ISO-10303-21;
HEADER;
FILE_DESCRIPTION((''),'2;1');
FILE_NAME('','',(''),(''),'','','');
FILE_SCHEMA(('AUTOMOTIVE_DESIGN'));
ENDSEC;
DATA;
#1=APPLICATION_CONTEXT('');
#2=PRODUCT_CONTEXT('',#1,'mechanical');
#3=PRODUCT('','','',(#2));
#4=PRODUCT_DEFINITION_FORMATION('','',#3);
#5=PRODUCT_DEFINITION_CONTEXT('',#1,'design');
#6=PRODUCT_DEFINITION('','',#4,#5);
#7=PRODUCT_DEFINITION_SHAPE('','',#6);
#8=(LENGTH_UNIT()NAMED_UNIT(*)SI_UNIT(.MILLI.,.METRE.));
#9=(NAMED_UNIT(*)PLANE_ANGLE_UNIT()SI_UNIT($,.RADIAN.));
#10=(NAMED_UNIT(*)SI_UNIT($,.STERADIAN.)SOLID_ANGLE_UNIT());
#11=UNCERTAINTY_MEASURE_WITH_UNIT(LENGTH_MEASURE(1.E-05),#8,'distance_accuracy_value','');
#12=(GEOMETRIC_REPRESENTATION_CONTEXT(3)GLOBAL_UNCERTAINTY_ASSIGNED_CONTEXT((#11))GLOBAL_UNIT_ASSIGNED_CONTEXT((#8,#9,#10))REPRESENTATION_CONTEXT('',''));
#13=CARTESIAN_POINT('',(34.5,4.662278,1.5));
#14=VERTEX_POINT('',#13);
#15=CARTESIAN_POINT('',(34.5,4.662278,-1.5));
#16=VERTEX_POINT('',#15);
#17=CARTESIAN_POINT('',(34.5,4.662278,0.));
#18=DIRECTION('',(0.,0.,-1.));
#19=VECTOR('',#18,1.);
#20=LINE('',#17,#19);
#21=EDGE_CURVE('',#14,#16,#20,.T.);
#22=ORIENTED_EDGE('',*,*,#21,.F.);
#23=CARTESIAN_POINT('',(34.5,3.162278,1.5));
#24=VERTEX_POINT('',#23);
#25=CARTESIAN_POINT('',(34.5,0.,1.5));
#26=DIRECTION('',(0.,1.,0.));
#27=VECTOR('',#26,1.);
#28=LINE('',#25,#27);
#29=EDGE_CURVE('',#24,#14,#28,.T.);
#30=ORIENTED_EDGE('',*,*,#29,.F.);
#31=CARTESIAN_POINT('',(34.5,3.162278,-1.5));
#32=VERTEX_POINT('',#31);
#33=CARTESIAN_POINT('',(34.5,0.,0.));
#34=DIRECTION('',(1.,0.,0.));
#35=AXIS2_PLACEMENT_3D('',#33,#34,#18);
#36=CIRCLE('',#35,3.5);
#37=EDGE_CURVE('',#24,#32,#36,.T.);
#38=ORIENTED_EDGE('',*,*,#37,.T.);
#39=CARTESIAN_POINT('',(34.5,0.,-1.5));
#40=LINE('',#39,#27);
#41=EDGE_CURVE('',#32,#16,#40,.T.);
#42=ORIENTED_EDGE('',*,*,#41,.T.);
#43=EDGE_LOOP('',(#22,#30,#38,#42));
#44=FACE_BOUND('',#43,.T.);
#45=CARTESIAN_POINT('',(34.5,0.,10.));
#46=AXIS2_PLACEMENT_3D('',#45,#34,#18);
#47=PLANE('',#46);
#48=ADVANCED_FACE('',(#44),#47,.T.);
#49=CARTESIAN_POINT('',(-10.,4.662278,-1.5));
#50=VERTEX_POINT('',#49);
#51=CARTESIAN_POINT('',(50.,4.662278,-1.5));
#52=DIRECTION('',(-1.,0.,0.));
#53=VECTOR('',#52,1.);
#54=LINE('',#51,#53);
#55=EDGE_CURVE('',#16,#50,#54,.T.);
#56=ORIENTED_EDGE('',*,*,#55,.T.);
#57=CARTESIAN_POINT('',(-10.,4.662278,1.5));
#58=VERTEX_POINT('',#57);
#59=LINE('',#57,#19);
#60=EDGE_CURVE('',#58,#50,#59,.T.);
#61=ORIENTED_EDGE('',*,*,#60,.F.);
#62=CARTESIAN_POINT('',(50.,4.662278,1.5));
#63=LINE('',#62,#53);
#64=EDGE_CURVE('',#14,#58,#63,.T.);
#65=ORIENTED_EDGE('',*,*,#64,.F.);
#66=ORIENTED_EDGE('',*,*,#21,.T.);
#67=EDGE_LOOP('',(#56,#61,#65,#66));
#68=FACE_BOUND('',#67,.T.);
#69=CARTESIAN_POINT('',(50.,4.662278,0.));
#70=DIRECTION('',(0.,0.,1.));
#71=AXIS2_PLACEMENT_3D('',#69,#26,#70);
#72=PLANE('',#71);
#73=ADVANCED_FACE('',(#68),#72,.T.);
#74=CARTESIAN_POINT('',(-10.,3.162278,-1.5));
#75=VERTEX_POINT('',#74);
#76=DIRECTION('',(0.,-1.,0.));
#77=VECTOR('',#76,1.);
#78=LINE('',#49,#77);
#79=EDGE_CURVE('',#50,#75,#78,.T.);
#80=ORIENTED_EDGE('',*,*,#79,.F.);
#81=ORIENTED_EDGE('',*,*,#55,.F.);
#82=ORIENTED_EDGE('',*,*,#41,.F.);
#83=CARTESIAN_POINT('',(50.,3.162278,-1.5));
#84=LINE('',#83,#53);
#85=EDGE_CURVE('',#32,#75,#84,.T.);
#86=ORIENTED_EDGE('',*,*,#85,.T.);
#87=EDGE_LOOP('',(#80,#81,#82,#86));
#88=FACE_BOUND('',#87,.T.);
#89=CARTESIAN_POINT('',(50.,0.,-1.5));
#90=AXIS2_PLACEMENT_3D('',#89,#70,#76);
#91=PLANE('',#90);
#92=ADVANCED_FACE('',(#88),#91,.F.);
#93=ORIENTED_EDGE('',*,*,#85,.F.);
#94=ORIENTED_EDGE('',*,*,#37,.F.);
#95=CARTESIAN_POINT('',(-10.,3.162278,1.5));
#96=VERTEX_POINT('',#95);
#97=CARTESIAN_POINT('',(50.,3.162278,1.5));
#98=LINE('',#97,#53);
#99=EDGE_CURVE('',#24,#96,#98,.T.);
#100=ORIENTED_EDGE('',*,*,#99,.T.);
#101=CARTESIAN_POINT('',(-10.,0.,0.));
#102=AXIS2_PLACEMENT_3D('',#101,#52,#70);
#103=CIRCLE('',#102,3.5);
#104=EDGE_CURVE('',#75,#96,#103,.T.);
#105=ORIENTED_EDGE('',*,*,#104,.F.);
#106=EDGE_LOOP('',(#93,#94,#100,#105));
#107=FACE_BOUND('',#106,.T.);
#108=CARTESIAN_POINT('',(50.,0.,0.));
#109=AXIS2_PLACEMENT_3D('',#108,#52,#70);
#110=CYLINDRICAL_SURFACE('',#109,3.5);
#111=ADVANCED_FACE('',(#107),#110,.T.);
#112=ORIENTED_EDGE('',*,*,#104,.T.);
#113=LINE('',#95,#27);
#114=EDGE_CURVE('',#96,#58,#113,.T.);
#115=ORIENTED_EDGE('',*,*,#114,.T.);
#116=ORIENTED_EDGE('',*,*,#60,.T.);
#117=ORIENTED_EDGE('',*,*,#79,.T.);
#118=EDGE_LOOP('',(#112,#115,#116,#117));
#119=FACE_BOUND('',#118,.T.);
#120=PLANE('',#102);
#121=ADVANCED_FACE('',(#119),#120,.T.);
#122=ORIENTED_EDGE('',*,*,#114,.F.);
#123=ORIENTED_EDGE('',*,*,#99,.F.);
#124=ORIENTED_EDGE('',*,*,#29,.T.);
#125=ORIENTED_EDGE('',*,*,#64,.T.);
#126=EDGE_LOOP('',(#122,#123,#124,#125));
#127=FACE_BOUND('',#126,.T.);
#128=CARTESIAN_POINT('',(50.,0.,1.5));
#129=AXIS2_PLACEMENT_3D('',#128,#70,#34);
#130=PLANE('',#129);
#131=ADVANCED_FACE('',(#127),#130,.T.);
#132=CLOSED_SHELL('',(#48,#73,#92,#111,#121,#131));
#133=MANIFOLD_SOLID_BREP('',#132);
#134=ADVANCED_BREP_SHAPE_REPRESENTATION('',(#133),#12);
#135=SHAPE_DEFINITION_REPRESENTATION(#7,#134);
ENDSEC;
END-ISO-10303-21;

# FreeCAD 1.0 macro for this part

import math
import FreeCAD as App
import Part
import Sketcher
Q = App.Units.Quantity


def add_polygon(sketch, points):
    """Adds a closed chain of lines whose ends are joined by coincident constraints."""
    first, n = sketch.GeometryCount, len(points)
    for a, b in zip(points, points[1:] + points[:1]):
        sketch.addGeometry(Part.LineSegment(App.Vector(*a, 0), App.Vector(*b, 0)), False)
    for i in range(n):
        sketch.addConstraint(Sketcher.Constraint("Coincident", first + i, 2, first + (i + 1) % n, 1))

doc = App.newDocument("Part")
body = doc.addObject("PartDesign::Body", "Body")

# Sketch on YZ plane
sketch1 = doc.addObject("Sketcher::SketchObject", "Sketch")
body.addObject(sketch1)
sketch1.AttachmentSupport = (doc.YZ_Plane, [""])
sketch1.MapMode = "FlatFace"
sketch1.addGeometry([
    Part.ArcOfCircle(Part.Circle(App.Vector(0, 0, 0), App.Vector(0, 0, 1), 3.5), math.radians(25.376934), math.radians(270)),  # 0
    Part.ArcOfCircle(Part.Circle(App.Vector(0, 0, 0), App.Vector(0, 0, 1), 3.5), math.radians(-90), math.radians(-25.376934)),  # 1
    Part.LineSegment(App.Vector(3.162278, -1.5, 0), App.Vector(4.662278, -1.5, 0)),  # 2
    Part.LineSegment(App.Vector(4.662278, -1.5, 0), App.Vector(4.662278, 1.5, 0)),  # 3
    Part.LineSegment(App.Vector(4.662278, 1.5, 0), App.Vector(3.162278, 1.5, 0)),  # 4
], False)
sketch1.addConstraint([
    Sketcher.Constraint("Tangent", 0, 2, 1, 1),
    Sketcher.Constraint("Coincident", 1, 2, 2, 1),
    Sketcher.Constraint("Coincident", 2, 2, 3, 1),
    Sketcher.Constraint("Coincident", 3, 2, 4, 1),
    Sketcher.Constraint("Coincident", 4, 2, 0, 1),
    Sketcher.Constraint("Horizontal", 2),
    Sketcher.Constraint("Vertical", 3),
    Sketcher.Constraint("Horizontal", 4),
    Sketcher.Constraint("Coincident", 0, 3, -1, 1),
    Sketcher.Constraint("Equal", 0, 1),
    Sketcher.Constraint("PointOnObject", 0, 2, -2),
    Sketcher.Constraint("Vertical", 1, 2, 4, 2),
    Sketcher.Constraint("Radius", 0, Q("3.5 mm")),
    Sketcher.Constraint("DistanceY", 3, 1, 3, 2, Q("3 mm")),
    Sketcher.Constraint("DistanceX", 2, 1, 2, 2, Q("1.5 mm")),
])
pad1 = doc.addObject("PartDesign::Pad", "Pad")
body.addObject(pad1)
pad1.Profile = sketch1
pad1.Length = 50

# Sketch on YZ plane
sketch2 = doc.addObject("Sketcher::SketchObject", "Sketch001")
body.addObject(sketch2)
sketch2.AttachmentSupport = (doc.YZ_Plane, [""])
sketch2.MapMode = "FlatFace"
sketch2.AttachmentOffset = App.Placement(App.Vector(0, 0, 44), App.Rotation())
sketch2.addGeometry([
    Part.LineSegment(App.Vector(4.662278, 1.5, 0), App.Vector(3.162278, 1.5, 0)),
    Part.ArcOfCircle(Part.Circle(App.Vector(0, 0, 0), App.Vector(0, 0, 1), 3.5), math.radians(-25.376934), math.radians(25.376934)),
    Part.LineSegment(App.Vector(3.162278, -1.5, 0), App.Vector(4.662278, -1.5, 0)),
    Part.LineSegment(App.Vector(4.662278, -1.5, 0), App.Vector(4.662278, 1.5, 0)),
], False)
sketch2.addConstraint([
    Sketcher.Constraint("Coincident", 0, 2, 1, 2),
    Sketcher.Constraint("Coincident", 1, 1, 2, 1),
    Sketcher.Constraint("Coincident", 2, 2, 3, 1),
    Sketcher.Constraint("Coincident", 3, 2, 0, 1),
    Sketcher.Constraint("Horizontal", 0),
    Sketcher.Constraint("Horizontal", 2),
    Sketcher.Constraint("Vertical", 3),
    Sketcher.Constraint("Coincident", 1, 3, -1, 1),
    Sketcher.Constraint("Vertical", 0, 2, 1, 1),
    Sketcher.Constraint("Radius", 1, Q("3.5 mm")),
    Sketcher.Constraint("DistanceY", 3, 1, 3, 2, Q("3 mm")),
    Sketcher.Constraint("DistanceX", 0, 2, 0, 1, Q("1.5 mm")),
])
pocket1 = doc.addObject("PartDesign::Pocket", "Pocket")
body.addObject(pocket1)
pocket1.Profile = sketch2
pocket1.Length = 6
pocket1.Reversed = True
doc.recompute()

datumplane = doc.addObject("PartDesign::Plane", "DatumPlane")
body.addObject(datumplane)
datumplane.AttachmentSupport = (doc.YZ_Plane, [""])
datumplane.MapMode = "FlatFace"
datumplane.AttachmentOffset = App.Placement(App.Vector(0, 0, 25), App.Rotation())
mirrored = doc.addObject("PartDesign::Mirrored", "Mirrored")
body.addObject(mirrored)
mirrored.Originals = [pocket1]
mirrored.MirrorPlane = (datumplane, [""])
body.Tip = mirrored

# Sketch on YZ plane
sketch3 = doc.addObject("Sketcher::SketchObject", "Sketch002")
body.addObject(sketch3)
sketch3.AttachmentSupport = (doc.YZ_Plane, [""])
sketch3.MapMode = "FlatFace"
sketch3.addGeometry(Part.Circle(App.Vector(0, 0, 0), App.Vector(0, 0, 1), 3.5), False)
sketch3.addConstraint([
    Sketcher.Constraint("Coincident", 0, 3, -1, 1),
    Sketcher.Constraint("Diameter", 0, Q("7 mm")),
])
pad2 = doc.addObject("PartDesign::Pad", "Pad001")
body.addObject(pad2)
pad2.Profile = sketch3
pad2.Length = 10
pad2.Reversed = True

# Sketch on XY plane
sketch4 = doc.addObject("Sketcher::SketchObject", "Sketch003")
body.addObject(sketch4)
sketch4.AttachmentSupport = (doc.XY_Plane, [""])
sketch4.MapMode = "FlatFace"
add_polygon(sketch4, [(34.5, 8.225657), (34.5, -8.592514), (52.621424, -8.592514), (52.621424, 8.225657)])  # lines 0-3
sketch4.addConstraint([
    Sketcher.Constraint("Vertical", 0),
    Sketcher.Constraint("Horizontal", 1),
    Sketcher.Constraint("Vertical", 2),
    Sketcher.Constraint("Horizontal", 3),
    Sketcher.Constraint("DistanceX", -1, 1, 0, 2, Q("34.5 mm")),
    Sketcher.Constraint("DistanceY", 0, 2, 0, 1, Q("16.818171 mm")),
    Sketcher.Constraint("DistanceX", 1, 1, 1, 2, Q("18.121424 mm")),
    Sketcher.Constraint("DistanceY", 0, 2, -1, 1, Q("8.592514 mm")),
])
pocket2 = doc.addObject("PartDesign::Pocket", "Pocket001")
body.addObject(pocket2)
pocket2.Profile = sketch4
pocket2.Type = "ThroughAll"
pocket2.Midplane = True

# Sketch on YZ plane
sketch5 = doc.addObject("Sketcher::SketchObject", "Sketch004")
body.addObject(sketch5)
sketch5.AttachmentSupport = (doc.YZ_Plane, [""])
sketch5.MapMode = "FlatFace"
sketch5.AttachmentOffset = App.Placement(App.Vector(0, 0, 6), App.Rotation())
sketch5.addGeometry([
    Part.LineSegment(App.Vector(3.162278, 1.5, 0), App.Vector(4.662278, 1.5, 0)),
    Part.LineSegment(App.Vector(4.662278, 1.5, 0), App.Vector(4.662278, -1.5, 0)),
    Part.LineSegment(App.Vector(4.662278, -1.5, 0), App.Vector(3.162278, -1.5, 0)),
    Part.ArcOfCircle(Part.Circle(App.Vector(0, 0, 0), App.Vector(0, 0, 1), 3.5), math.radians(-25.376934), math.radians(25.376934)),
], False)
sketch5.addConstraint([
    Sketcher.Constraint("Coincident", 0, 2, 1, 1),
    Sketcher.Constraint("Coincident", 1, 2, 2, 1),
    Sketcher.Constraint("Coincident", 2, 2, 3, 1),
    Sketcher.Constraint("Coincident", 3, 2, 0, 1),
    Sketcher.Constraint("Horizontal", 0),
    Sketcher.Constraint("Vertical", 1),
    Sketcher.Constraint("Horizontal", 2),
    Sketcher.Constraint("Coincident", 3, 3, -1, 1),
    Sketcher.Constraint("Vertical", 2, 2, 3, 2),
    Sketcher.Constraint("Radius", 3, Q("3.5 mm")),
    Sketcher.Constraint("DistanceY", 1, 2, 1, 1, Q("3 mm")),
    Sketcher.Constraint("DistanceX", 0, 1, 0, 2, Q("1.5 mm")),
])
pad3 = doc.addObject("PartDesign::Pad", "Pad002")
body.addObject(pad3)
pad3.Profile = sketch5
pad3.Length = 16
pad3.Reversed = True

doc.recompute()
